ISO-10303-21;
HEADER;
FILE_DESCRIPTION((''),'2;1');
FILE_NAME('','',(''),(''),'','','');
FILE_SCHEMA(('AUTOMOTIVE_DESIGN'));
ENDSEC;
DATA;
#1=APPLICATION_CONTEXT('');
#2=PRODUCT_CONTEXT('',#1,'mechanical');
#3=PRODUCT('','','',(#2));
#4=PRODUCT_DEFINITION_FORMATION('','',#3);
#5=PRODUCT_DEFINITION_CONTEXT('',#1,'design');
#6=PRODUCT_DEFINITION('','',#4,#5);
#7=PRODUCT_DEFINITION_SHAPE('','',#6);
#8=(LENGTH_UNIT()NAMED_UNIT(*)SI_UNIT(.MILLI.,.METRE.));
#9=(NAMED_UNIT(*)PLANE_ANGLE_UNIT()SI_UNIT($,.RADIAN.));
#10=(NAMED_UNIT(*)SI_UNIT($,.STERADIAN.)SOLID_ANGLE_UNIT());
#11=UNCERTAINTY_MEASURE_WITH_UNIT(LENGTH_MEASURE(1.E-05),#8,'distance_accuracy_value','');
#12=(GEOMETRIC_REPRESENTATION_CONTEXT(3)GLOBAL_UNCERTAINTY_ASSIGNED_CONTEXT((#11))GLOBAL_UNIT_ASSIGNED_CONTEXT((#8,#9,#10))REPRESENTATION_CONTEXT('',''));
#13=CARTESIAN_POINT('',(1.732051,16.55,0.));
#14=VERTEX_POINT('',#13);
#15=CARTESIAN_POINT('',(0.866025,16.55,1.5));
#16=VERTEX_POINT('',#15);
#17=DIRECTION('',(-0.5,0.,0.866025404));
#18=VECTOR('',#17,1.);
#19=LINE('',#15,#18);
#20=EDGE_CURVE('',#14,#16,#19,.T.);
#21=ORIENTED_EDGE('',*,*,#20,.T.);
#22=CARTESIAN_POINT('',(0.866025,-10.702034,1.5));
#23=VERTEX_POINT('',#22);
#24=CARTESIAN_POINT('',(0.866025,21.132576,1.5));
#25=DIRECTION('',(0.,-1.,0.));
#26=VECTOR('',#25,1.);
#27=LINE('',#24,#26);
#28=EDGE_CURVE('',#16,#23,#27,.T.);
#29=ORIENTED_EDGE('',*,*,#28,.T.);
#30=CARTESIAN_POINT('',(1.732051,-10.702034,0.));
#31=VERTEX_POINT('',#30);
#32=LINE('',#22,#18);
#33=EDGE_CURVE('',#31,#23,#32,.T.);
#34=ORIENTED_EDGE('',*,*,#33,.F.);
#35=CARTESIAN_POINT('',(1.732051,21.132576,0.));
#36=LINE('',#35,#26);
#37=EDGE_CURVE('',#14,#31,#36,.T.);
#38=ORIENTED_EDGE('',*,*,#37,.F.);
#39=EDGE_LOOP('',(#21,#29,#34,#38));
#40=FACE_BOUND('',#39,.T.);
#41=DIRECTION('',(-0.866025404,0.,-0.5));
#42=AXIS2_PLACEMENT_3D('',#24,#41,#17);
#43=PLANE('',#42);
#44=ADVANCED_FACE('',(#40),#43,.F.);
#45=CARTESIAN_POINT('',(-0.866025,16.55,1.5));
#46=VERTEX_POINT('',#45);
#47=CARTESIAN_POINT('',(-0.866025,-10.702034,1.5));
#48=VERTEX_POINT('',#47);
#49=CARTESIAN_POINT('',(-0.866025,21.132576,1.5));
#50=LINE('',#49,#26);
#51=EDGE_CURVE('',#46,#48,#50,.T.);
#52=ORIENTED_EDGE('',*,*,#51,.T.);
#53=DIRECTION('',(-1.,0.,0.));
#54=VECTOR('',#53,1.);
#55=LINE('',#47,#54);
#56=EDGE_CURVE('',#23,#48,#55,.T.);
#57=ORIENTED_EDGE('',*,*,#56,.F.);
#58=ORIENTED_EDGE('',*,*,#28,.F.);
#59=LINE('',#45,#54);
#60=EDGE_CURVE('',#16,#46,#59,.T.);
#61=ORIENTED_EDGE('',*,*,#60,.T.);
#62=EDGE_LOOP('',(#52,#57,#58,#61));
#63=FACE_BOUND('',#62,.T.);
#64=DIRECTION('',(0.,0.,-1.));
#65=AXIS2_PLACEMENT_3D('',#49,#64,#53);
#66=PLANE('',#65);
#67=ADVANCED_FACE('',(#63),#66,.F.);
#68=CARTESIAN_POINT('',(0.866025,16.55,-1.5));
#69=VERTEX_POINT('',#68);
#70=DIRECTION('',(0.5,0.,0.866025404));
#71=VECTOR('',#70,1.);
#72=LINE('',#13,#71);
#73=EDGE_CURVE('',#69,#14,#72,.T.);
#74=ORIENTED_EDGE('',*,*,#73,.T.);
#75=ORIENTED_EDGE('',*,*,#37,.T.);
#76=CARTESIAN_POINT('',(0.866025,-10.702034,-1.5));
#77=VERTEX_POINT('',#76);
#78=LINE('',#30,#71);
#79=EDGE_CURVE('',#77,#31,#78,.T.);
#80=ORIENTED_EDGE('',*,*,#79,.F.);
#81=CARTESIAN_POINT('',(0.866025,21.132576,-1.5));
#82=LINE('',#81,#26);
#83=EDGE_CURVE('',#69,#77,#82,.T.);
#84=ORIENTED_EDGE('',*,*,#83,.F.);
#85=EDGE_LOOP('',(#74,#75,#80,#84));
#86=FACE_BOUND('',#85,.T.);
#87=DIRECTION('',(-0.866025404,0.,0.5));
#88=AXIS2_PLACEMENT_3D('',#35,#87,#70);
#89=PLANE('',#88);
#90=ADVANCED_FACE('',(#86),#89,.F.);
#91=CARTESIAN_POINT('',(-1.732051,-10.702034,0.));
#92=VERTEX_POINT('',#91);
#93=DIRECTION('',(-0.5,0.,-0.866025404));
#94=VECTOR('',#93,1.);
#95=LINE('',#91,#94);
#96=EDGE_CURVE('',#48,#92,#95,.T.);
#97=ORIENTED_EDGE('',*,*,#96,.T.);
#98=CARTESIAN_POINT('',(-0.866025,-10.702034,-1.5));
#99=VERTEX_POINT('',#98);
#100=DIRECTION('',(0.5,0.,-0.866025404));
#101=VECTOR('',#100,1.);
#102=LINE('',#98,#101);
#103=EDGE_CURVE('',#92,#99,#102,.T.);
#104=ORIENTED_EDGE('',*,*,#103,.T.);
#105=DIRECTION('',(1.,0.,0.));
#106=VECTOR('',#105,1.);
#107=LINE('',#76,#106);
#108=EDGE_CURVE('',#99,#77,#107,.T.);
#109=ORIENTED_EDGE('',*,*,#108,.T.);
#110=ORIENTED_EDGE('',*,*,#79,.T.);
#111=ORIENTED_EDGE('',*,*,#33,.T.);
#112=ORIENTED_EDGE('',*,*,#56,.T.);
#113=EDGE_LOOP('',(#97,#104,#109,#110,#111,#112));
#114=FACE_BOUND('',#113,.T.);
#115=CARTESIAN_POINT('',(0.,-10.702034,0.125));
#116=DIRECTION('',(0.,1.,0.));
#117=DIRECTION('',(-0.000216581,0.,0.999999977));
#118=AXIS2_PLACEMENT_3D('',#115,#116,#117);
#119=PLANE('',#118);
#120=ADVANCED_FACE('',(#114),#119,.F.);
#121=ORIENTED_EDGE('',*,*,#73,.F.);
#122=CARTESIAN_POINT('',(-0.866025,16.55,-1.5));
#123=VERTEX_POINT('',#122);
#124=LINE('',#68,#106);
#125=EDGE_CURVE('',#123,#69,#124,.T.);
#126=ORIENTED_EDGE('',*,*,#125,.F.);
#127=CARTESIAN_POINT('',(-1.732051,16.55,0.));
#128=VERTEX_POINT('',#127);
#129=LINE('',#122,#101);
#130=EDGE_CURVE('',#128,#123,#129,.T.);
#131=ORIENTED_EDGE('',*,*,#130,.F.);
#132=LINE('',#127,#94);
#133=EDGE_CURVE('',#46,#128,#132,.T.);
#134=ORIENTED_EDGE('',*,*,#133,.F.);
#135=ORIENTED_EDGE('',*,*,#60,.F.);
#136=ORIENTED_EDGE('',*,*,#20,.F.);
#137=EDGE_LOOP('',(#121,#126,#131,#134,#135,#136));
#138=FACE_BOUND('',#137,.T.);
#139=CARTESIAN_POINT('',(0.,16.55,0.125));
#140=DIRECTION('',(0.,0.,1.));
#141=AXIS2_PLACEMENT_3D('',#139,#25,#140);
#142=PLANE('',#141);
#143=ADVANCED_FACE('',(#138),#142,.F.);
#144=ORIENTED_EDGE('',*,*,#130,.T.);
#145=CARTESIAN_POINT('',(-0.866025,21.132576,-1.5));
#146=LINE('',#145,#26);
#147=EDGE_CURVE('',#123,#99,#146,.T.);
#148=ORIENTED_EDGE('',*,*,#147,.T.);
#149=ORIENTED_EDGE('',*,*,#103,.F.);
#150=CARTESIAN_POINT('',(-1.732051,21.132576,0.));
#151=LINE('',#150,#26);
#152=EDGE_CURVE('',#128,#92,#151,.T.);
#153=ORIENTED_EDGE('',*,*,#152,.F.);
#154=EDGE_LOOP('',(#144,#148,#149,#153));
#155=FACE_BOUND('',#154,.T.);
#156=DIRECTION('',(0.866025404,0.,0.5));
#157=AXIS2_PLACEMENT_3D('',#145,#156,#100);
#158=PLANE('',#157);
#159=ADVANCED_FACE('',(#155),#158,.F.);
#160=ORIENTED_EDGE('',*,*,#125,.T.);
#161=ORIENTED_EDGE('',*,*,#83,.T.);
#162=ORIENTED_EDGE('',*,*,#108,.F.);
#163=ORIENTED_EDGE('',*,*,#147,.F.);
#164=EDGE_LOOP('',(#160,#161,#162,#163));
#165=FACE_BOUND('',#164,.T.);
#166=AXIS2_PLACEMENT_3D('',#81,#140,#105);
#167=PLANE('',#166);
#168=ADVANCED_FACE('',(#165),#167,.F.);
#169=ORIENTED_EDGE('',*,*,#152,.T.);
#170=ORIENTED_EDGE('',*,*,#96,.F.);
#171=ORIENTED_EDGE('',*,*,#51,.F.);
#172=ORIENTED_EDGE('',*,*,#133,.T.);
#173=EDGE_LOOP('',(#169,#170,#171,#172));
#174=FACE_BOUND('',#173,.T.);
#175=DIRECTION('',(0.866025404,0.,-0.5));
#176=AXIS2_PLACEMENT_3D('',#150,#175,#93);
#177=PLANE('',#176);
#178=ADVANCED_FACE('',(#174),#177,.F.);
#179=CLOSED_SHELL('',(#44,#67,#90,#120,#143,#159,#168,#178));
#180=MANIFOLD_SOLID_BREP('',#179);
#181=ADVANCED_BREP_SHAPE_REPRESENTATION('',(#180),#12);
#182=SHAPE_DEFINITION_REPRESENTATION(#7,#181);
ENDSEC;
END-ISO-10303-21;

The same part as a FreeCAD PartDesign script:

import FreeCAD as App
import Part
import Sketcher
Q = App.Units.Quantity


def add_polygon(sketch, points):
    """Adds a closed chain of lines whose ends are joined by coincident constraints."""
    first, n = sketch.GeometryCount, len(points)
    for a, b in zip(points, points[1:] + points[:1]):
        sketch.addGeometry(Part.LineSegment(App.Vector(*a, 0), App.Vector(*b, 0)), False)
    for i in range(n):
        sketch.addConstraint(Sketcher.Constraint("Coincident", first + i, 2, first + (i + 1) % n, 1))

doc = App.newDocument("Part")
body = doc.addObject("PartDesign::Body", "Body")

# Sketch on XZ plane
sketch1 = body.newObject("Sketcher::SketchObject", "Sketch")
sketch1.AttachmentSupport = (doc.getObject("XZ_Plane"), [""])
sketch1.MapMode = "FlatFace"
add_polygon(sketch1, [(1.7, 0), (0.9, -1.5), (-0.9, -1.5), (-1.7, 0), (-0.9, 1.5), (0.9, 1.5)])  # lines 0-5
sketch1.addConstraint([
    Sketcher.Constraint("Horizontal", 1),
    Sketcher.Constraint("Horizontal", 4),
    Sketcher.Constraint("Symmetric", 0, 2, 3, 2, -1, 1),
    Sketcher.Constraint("Symmetric", 2, 2, 5, 2, -1, 1),
    Sketcher.Constraint("PointOnObject", 2, 2, -1),
    Sketcher.Constraint("Parallel", 2, 5),
    Sketcher.Constraint("Vertical", 1, 2, 3, 2),
    Sketcher.Constraint("Angle", 0, Q("-120 deg")),
    Sketcher.Constraint("DistanceY", 1, 2, 3, 2, 3.0),
    Sketcher.Constraint("DistanceX", 1, 2, 1, 1, 1.732051),
])
pad1 = body.newObject("PartDesign::Pad", "Pad")
pad1.Profile = sketch1
pad1.Type = "TwoLengths"
pad1.Length = 16.55
pad1.Length2 = 10.702034
pad1.Reversed = True

doc.recompute()
